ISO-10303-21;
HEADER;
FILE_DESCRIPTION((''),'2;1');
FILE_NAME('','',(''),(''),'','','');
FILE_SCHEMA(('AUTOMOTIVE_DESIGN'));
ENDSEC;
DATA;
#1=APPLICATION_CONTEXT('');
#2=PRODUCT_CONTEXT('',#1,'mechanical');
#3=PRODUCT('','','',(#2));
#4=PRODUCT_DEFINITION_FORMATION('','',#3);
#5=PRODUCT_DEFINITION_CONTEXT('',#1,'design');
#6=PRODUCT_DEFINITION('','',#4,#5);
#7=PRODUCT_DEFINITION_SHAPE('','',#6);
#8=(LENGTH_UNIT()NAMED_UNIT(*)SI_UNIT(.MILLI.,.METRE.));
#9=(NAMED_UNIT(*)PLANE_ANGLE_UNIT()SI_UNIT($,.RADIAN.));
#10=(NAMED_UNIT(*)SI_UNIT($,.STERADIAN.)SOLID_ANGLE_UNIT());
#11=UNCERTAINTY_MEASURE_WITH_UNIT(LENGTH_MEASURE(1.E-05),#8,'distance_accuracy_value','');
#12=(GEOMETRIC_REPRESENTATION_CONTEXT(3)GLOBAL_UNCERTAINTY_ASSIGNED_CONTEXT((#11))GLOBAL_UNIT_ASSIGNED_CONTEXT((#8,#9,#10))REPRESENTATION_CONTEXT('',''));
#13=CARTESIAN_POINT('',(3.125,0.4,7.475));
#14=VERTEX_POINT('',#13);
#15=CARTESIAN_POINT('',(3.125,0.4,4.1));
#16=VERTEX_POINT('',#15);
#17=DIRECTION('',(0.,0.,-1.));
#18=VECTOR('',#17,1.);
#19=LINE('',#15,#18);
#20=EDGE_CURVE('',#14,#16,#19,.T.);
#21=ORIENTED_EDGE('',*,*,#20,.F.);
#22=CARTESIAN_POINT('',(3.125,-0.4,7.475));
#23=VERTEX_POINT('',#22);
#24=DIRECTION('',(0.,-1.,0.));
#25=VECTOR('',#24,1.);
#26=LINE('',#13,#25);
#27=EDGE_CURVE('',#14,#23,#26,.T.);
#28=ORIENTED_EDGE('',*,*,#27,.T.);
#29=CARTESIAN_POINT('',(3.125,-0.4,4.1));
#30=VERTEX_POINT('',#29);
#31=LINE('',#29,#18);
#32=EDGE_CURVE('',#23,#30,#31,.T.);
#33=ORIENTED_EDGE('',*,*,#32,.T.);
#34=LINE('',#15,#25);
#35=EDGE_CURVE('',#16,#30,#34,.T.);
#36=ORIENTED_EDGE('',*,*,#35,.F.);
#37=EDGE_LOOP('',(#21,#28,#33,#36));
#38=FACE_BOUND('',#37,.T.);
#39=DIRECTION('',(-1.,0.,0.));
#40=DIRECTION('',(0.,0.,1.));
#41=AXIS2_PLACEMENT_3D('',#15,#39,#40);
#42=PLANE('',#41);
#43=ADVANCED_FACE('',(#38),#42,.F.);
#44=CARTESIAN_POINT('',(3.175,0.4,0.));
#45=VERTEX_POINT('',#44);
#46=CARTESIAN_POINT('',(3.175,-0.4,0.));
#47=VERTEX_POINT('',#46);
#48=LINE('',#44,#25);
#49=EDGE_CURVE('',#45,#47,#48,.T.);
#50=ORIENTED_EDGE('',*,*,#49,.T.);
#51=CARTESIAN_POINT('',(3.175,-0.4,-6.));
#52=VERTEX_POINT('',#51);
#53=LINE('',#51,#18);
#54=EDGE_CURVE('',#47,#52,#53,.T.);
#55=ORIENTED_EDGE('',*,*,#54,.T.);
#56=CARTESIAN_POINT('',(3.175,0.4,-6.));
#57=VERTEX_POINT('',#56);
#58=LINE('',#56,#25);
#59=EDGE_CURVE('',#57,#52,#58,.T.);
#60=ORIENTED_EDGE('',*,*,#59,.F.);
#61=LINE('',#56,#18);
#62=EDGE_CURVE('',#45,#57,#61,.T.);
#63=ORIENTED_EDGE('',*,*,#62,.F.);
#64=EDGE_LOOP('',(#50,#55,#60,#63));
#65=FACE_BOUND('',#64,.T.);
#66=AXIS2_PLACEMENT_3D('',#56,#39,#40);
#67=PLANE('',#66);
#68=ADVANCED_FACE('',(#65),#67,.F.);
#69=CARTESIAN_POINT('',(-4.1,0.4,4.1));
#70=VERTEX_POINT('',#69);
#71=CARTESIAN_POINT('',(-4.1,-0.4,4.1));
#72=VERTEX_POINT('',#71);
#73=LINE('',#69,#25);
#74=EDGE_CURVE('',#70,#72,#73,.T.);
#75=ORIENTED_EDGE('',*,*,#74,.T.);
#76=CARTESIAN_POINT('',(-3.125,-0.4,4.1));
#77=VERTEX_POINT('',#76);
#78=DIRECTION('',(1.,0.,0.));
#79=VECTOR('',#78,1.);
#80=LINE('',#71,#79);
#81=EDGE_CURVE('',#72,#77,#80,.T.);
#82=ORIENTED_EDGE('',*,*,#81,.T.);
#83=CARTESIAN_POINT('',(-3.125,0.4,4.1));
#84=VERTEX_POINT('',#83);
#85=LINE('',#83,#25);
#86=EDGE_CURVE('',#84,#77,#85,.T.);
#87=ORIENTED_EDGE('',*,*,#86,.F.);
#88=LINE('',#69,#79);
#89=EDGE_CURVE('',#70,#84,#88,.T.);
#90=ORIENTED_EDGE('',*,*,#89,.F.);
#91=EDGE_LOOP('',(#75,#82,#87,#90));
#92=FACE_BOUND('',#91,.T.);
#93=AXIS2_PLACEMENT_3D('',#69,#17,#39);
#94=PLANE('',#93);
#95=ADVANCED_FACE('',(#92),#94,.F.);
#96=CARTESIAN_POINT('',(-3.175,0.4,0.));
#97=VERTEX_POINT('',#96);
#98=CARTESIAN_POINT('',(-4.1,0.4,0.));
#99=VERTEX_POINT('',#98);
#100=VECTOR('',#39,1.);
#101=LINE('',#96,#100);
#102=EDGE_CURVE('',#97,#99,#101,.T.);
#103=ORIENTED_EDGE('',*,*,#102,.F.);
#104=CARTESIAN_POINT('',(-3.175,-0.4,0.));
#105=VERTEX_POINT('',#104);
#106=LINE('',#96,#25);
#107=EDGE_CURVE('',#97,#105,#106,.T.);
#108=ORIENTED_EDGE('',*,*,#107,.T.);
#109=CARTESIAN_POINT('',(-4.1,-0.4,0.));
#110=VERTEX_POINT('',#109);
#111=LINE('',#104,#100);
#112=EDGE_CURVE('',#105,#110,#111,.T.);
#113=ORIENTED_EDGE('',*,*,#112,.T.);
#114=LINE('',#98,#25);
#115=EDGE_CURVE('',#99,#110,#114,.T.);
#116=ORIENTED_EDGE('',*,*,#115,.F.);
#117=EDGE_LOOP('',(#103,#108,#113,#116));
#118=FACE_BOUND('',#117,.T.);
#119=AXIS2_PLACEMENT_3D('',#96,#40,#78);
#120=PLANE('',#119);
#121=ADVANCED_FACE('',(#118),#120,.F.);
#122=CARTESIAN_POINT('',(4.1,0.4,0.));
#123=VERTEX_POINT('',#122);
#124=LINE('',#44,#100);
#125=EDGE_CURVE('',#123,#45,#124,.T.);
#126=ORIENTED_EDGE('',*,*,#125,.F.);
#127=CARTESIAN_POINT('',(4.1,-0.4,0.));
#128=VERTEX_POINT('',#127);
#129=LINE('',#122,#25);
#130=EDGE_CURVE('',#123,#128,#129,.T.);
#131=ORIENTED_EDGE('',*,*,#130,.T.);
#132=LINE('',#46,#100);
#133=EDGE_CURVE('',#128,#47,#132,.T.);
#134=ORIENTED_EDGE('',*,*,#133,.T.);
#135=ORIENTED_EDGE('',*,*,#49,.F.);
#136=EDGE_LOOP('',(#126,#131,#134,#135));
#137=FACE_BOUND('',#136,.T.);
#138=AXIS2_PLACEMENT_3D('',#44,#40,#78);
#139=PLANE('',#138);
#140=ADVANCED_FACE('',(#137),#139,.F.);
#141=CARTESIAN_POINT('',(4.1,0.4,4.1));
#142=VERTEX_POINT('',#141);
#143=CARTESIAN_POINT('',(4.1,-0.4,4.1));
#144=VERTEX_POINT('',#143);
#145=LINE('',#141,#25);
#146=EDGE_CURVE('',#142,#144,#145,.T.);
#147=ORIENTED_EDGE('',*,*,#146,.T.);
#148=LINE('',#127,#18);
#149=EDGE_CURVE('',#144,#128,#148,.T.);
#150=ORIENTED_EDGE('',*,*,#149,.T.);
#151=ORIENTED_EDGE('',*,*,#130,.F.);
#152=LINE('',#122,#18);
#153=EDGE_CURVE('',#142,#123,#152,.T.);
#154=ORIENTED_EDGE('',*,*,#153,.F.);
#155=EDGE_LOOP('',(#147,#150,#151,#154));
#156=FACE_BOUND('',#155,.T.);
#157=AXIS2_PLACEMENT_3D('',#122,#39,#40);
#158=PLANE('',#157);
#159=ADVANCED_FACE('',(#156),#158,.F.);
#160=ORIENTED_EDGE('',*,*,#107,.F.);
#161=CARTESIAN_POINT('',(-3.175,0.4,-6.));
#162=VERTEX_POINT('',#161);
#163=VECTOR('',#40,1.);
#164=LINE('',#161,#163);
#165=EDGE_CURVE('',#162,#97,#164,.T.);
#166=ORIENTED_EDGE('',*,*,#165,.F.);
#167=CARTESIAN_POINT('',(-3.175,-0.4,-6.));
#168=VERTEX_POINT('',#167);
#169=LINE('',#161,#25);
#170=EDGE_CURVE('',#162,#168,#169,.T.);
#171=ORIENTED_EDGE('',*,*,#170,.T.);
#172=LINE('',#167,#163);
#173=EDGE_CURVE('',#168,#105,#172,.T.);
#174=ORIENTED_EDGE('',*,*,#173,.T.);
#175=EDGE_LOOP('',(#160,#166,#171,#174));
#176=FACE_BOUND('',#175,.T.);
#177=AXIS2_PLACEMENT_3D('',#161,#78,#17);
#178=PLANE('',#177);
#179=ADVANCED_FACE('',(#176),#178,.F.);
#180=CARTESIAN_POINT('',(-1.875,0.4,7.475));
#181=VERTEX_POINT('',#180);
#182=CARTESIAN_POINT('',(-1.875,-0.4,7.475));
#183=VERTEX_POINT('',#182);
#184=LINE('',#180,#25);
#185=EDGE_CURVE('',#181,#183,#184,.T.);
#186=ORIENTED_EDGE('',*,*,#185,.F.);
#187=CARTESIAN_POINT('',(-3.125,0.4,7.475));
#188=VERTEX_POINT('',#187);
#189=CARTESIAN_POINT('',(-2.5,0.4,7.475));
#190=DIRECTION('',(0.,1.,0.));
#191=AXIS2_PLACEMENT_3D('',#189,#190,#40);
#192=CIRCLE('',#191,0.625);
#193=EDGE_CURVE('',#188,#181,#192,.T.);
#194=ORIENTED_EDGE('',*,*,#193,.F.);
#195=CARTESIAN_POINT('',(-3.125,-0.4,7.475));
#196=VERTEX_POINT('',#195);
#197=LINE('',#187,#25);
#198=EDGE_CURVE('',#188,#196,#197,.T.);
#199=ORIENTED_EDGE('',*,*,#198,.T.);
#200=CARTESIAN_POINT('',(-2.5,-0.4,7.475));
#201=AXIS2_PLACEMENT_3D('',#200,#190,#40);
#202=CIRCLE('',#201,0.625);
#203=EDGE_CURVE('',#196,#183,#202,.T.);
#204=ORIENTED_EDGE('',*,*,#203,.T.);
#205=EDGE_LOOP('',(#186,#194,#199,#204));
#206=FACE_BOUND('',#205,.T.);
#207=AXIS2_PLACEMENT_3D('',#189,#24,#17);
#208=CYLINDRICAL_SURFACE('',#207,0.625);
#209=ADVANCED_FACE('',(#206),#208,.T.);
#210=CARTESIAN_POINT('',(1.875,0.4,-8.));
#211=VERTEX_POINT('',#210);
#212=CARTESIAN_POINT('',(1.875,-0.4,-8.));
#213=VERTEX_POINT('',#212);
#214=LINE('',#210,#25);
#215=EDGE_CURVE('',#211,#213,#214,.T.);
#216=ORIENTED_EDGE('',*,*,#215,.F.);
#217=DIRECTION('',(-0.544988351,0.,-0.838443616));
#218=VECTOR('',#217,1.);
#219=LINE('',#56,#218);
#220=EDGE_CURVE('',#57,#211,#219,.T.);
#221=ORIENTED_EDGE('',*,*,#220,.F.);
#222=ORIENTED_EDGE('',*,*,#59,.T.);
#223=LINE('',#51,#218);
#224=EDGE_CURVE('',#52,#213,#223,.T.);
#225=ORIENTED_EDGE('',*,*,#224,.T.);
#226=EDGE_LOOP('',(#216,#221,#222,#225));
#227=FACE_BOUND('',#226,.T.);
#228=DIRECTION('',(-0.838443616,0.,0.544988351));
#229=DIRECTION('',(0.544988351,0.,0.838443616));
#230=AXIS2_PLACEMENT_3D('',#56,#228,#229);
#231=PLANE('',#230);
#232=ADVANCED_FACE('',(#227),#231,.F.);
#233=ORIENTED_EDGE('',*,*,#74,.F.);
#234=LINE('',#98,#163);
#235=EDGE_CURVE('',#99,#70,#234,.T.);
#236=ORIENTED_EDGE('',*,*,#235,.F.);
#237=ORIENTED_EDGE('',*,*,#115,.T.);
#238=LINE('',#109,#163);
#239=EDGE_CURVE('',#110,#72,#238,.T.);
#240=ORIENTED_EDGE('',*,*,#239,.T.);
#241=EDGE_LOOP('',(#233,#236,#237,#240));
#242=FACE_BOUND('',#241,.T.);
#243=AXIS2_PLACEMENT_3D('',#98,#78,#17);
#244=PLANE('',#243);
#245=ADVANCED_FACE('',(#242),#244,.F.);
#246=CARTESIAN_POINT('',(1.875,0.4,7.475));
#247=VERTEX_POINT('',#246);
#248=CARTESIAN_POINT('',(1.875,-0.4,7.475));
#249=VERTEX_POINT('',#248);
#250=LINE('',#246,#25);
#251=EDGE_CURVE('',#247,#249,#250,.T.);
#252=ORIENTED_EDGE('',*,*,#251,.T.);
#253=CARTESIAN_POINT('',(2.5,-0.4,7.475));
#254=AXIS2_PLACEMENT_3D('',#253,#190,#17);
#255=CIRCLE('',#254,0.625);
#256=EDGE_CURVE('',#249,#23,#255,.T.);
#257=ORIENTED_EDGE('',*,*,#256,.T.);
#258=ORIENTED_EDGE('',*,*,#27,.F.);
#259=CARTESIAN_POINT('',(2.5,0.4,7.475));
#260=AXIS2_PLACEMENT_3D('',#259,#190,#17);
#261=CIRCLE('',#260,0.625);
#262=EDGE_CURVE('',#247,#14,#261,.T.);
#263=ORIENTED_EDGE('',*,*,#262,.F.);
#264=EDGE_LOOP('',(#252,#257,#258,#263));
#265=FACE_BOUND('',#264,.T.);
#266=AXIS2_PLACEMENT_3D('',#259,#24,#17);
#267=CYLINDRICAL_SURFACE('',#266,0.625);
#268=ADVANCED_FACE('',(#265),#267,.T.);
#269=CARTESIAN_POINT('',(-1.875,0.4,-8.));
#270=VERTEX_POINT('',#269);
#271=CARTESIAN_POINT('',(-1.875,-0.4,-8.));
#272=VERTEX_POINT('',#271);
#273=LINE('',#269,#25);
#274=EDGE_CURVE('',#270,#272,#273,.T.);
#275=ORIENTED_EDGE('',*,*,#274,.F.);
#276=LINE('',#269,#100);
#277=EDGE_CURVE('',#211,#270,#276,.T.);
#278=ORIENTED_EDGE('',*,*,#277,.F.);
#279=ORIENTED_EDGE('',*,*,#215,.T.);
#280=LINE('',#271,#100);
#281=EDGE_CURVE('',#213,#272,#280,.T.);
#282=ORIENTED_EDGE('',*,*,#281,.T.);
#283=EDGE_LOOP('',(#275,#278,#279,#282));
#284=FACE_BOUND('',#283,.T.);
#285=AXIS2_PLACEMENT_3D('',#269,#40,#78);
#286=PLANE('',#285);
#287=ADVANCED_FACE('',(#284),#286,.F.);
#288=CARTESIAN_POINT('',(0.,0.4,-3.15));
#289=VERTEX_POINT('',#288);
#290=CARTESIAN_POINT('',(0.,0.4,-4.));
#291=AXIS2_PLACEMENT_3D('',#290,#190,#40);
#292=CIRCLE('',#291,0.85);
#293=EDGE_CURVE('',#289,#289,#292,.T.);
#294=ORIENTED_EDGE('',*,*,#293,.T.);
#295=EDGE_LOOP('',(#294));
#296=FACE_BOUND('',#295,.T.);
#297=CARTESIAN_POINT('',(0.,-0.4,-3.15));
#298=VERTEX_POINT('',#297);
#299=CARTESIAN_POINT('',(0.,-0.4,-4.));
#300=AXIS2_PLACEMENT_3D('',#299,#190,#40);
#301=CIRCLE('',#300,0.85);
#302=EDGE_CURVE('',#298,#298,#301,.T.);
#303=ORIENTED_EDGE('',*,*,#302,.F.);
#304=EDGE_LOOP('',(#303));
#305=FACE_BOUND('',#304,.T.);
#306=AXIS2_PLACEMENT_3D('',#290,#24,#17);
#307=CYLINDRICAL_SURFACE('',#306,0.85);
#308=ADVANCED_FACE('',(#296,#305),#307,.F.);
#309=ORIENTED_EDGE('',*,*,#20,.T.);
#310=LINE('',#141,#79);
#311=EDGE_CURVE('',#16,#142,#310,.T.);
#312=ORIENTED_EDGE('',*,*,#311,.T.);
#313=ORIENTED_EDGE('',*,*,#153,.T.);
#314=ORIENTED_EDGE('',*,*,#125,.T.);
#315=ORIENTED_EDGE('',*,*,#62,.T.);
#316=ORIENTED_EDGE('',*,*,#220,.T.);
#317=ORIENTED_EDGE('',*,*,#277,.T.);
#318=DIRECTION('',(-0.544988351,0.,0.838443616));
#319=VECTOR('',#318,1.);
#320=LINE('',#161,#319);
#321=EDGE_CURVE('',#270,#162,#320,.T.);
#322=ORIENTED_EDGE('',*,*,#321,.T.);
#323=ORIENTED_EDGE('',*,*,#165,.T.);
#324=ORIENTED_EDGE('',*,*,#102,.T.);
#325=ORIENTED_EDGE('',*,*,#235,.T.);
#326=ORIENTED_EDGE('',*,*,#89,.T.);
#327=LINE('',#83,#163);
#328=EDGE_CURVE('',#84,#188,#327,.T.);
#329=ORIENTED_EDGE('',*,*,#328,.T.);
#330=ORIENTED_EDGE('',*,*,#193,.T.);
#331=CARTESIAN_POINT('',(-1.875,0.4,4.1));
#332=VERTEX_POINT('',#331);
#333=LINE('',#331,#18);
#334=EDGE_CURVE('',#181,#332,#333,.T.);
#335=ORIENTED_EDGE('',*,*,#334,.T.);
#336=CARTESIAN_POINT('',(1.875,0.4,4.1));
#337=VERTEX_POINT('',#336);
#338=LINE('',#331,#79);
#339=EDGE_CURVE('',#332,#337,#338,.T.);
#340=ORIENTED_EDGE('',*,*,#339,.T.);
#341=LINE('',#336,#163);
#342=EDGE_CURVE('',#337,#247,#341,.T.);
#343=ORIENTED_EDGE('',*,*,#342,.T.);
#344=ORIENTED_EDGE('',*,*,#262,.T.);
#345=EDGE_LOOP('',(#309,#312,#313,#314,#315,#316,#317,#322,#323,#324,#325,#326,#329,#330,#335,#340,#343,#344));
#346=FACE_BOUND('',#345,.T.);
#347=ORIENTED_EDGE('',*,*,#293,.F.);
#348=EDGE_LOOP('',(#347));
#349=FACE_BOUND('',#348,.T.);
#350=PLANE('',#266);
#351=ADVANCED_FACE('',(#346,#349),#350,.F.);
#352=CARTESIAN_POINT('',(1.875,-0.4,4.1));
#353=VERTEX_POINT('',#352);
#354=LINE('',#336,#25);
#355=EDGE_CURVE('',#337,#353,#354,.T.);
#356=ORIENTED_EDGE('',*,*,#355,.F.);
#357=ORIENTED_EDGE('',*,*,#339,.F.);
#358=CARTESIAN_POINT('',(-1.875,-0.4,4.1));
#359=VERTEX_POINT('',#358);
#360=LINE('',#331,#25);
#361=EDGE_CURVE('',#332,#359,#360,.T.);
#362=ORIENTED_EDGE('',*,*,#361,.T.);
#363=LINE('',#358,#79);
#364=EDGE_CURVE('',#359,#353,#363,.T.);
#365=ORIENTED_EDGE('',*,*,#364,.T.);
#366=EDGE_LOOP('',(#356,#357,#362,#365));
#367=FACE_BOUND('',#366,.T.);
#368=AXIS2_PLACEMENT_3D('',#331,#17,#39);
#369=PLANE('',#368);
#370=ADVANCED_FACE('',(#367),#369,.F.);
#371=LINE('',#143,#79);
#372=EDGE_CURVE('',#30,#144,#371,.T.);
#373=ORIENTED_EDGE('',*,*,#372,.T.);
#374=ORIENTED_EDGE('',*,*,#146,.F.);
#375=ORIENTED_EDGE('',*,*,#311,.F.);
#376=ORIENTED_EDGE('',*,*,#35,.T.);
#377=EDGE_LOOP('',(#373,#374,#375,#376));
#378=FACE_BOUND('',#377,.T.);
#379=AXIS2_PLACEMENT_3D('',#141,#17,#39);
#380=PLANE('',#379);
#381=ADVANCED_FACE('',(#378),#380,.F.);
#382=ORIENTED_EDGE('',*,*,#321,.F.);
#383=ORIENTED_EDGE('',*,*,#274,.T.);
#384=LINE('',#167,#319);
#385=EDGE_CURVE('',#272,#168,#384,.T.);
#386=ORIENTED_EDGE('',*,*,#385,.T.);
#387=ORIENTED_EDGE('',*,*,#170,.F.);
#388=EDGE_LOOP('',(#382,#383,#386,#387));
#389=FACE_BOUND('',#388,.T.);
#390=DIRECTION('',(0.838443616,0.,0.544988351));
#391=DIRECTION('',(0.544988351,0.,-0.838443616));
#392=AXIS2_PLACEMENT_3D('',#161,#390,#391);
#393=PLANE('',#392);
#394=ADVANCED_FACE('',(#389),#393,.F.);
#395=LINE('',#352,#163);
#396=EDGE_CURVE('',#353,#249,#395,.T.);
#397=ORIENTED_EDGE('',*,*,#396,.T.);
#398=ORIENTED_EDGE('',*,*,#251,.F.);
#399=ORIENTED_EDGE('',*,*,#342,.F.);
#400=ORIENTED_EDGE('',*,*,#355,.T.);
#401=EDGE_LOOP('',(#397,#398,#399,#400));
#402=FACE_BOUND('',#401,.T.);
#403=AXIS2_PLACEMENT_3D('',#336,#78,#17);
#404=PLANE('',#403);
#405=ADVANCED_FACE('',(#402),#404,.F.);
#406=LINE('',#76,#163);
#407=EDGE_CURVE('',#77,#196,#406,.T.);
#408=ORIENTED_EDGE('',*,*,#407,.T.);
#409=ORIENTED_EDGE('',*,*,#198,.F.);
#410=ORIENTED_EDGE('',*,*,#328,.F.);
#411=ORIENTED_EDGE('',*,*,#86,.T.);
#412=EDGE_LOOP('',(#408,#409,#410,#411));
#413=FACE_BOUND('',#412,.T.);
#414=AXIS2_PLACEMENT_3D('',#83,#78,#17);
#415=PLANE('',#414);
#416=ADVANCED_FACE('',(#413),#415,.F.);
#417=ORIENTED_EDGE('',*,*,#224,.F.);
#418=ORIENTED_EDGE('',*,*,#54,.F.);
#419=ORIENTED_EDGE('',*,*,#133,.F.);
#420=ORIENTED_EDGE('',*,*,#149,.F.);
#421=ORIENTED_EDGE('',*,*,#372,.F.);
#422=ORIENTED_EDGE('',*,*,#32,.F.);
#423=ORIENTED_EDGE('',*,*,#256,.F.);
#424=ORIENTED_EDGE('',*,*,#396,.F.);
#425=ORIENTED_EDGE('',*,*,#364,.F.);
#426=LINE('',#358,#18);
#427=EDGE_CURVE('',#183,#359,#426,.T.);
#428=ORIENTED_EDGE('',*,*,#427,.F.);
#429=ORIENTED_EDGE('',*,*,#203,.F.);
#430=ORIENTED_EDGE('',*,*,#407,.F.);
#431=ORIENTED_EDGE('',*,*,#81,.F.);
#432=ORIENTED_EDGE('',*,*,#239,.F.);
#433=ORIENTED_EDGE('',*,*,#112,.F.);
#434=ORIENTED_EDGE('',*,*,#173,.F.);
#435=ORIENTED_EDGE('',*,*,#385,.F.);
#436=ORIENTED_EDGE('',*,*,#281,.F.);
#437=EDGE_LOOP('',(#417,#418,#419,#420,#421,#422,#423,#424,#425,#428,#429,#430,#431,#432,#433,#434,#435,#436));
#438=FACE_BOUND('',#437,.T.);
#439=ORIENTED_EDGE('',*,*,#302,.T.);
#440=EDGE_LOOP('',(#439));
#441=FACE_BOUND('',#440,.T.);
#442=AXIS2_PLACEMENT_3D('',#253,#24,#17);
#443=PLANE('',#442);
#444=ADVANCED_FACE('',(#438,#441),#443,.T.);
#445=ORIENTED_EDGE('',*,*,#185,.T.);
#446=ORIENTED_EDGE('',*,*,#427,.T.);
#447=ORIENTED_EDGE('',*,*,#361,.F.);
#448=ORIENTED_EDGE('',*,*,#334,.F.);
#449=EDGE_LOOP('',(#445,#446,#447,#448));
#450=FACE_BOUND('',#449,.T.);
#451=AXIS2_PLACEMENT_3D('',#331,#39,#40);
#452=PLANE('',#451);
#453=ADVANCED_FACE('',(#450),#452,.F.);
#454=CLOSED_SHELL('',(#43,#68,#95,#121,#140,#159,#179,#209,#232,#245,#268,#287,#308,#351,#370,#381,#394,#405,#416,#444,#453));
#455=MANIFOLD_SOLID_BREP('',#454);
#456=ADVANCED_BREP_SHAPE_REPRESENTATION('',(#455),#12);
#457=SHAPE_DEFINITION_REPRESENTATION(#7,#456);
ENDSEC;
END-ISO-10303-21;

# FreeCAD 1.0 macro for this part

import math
import FreeCAD as App
import Part
import Sketcher
from FreeCAD import Vector
Q = App.Units.Quantity

doc = App.newDocument("Part")
params = doc.addObject("Spreadsheet::Sheet", "Params")
for row, (alias, value) in enumerate([
    ("sketch1_diameter", "1.7 mm"),
    ("sketch1_height", "6 mm"),
    ("sketch1_height2", "4.1 mm"),
    ("pad1_length", "0.8 mm"),
], start=1):
    params.set(f"A{row}", alias)
    params.set(f"B{row}", "=" + value)
    params.setAlias(f"B{row}", alias)

body = doc.addObject("PartDesign::Body", "Body")

# Sketch on XZ plane
sketch1 = doc.addObject("Sketcher::SketchObject", "Sketch")
body.addObject(sketch1)
sketch1.AttachmentSupport = (doc.XZ_Plane, [""])
sketch1.MapMode = "FlatFace"
sketch1.addGeometry([
    Part.LineSegment(Vector(-3.175, -6, 0), Vector(-3.175, 0, 0)),  # 0
    Part.LineSegment(Vector(-3.175, 0, 0), Vector(-4.1, 0, 0)),  # 1
    Part.LineSegment(Vector(-4.1, 0, 0), Vector(-4.1, 4.1, 0)),  # 2
    Part.LineSegment(Vector(-4.1, 4.1, 0), Vector(-3.125, 4.1, 0)),  # 3
    Part.LineSegment(Vector(-3.125, 4.1, 0), Vector(-3.125, 7.475, 0)),  # 4
    Part.ArcOfCircle(Part.Circle(Vector(-2.5, 7.475, 0), Vector(0, 0, 1), 0.625), math.radians(0), math.radians(180)),  # 5
    Part.LineSegment(Vector(-1.875, 7.475, 0), Vector(-1.875, 4.1, 0)),  # 6
    Part.LineSegment(Vector(-1.875, 4.1, 0), Vector(1.875, 4.1, 0)),  # 7
    Part.LineSegment(Vector(1.875, 4.1, 0), Vector(1.875, 7.475, 0)),  # 8
    Part.ArcOfCircle(Part.Circle(Vector(2.5, 7.475, 0), Vector(0, 0, 1), 0.625), math.radians(0), math.radians(180)),  # 9
    Part.LineSegment(Vector(3.125, 7.475, 0), Vector(3.125, 4.1, 0)),  # 10
    Part.LineSegment(Vector(3.125, 4.1, 0), Vector(4.1, 4.1, 0)),  # 11
    Part.LineSegment(Vector(4.1, 4.1, 0), Vector(4.1, 0, 0)),  # 12
    Part.LineSegment(Vector(4.1, 0, 0), Vector(3.175, 0, 0)),  # 13
    Part.LineSegment(Vector(3.175, 0, 0), Vector(3.175, -6, 0)),  # 14
    Part.LineSegment(Vector(3.175, -6, 0), Vector(1.875, -8, 0)),  # 15
    Part.LineSegment(Vector(1.875, -8, 0), Vector(-1.875, -8, 0)),  # 16
    Part.LineSegment(Vector(-1.875, -8, 0), Vector(-3.175, -6, 0)),  # 17
    Part.Circle(Vector(0, -4, 0), Vector(0, 0, 1), 0.85),  # 18
], False)
sketch1.addConstraint([
    Sketcher.Constraint("Coincident", 0, 2, 1, 1),
    Sketcher.Constraint("Coincident", 1, 2, 2, 1),
    Sketcher.Constraint("Coincident", 2, 2, 3, 1),
    Sketcher.Constraint("Coincident", 3, 2, 4, 1),
    Sketcher.Constraint("Tangent", 4, 2, 5, 2),
    Sketcher.Constraint("Tangent", 5, 1, 6, 1),
    Sketcher.Constraint("Coincident", 6, 2, 7, 1),
    Sketcher.Constraint("Coincident", 7, 2, 8, 1),
    Sketcher.Constraint("Tangent", 8, 2, 9, 2),
    Sketcher.Constraint("Tangent", 9, 1, 10, 1),
    Sketcher.Constraint("Coincident", 10, 2, 11, 1),
    Sketcher.Constraint("Coincident", 11, 2, 12, 1),
    Sketcher.Constraint("Coincident", 12, 2, 13, 1),
    Sketcher.Constraint("Coincident", 13, 2, 14, 1),
    Sketcher.Constraint("Coincident", 14, 2, 15, 1),
    Sketcher.Constraint("Coincident", 15, 2, 16, 1),
    Sketcher.Constraint("Coincident", 16, 2, 17, 1),
    Sketcher.Constraint("Coincident", 17, 2, 0, 1),
    Sketcher.Constraint("Vertical", 0),
    Sketcher.Constraint("Horizontal", 1),
    Sketcher.Constraint("Vertical", 2),
    Sketcher.Constraint("Horizontal", 3),
    Sketcher.Constraint("Vertical", 4),
    Sketcher.Constraint("Vertical", 6),
    Sketcher.Constraint("Horizontal", 7),
    Sketcher.Constraint("Vertical", 8),
    Sketcher.Constraint("Vertical", 10),
    Sketcher.Constraint("Horizontal", 11),
    Sketcher.Constraint("Vertical", 12),
    Sketcher.Constraint("Horizontal", 13),
    Sketcher.Constraint("Vertical", 14),
    Sketcher.Constraint("Horizontal", 16),
    Sketcher.Constraint("Equal", 5, 9),
    Sketcher.Constraint("Symmetric", 1, 2, 12, 2, -1, 1),
    Sketcher.Constraint("Symmetric", 5, 3, 9, 3, -2),
    Sketcher.Constraint("Symmetric", 0, 2, 13, 2, -2),
    Sketcher.Constraint("PointOnObject", 18, 3, -2),
    Sketcher.Constraint("Horizontal", 3, 2, 6, 2),
    Sketcher.Constraint("Horizontal", 7, 2, 10, 2),
    Sketcher.Constraint("Horizontal", 14, 2, 17, 2),
    Sketcher.Constraint("Vertical", 8, 2, 15, 2),
    Sketcher.Constraint("Vertical", 6, 2, 16, 2),
    Sketcher.Constraint("Diameter", 18, Q("1.7 mm")),
    Sketcher.Constraint("DistanceY", 0, 1, 0, 2, Q("6 mm")),
    Sketcher.Constraint("DistanceY", 2, 1, 2, 2, Q("4.1 mm")),
    Sketcher.Constraint("DistanceY", 18, 3, -1, 1, Q("4 mm")),
    Sketcher.Constraint("DistanceY", 15, 2, -1, 1, Q("8 mm")),
    Sketcher.Constraint("Radius", 5, Q("0.625 mm")),
    Sketcher.Constraint("DistanceX", 5, 3, 9, 3, Q("5 mm")),
    Sketcher.Constraint("DistanceX", 1, 2, -1, 1, Q("4.1 mm")),
    Sketcher.Constraint("DistanceX", 7, 2, 13, 2, Q("1.3 mm")),
    Sketcher.Constraint("DistanceY", 4, 1, 4, 2, Q("3.375 mm")),
])
sketch1.setExpression("Constraints[42]", "Params.sketch1_diameter")
sketch1.setExpression("Constraints[43]", "Params.sketch1_height")
sketch1.setExpression("Constraints[44]", "Params.sketch1_height2")
pad1 = doc.addObject("PartDesign::Pad", "Pad")
body.addObject(pad1)
pad1.Profile = sketch1
pad1.setExpression("Length", "Params.pad1_length")
pad1.Midplane = True

doc.recompute()
